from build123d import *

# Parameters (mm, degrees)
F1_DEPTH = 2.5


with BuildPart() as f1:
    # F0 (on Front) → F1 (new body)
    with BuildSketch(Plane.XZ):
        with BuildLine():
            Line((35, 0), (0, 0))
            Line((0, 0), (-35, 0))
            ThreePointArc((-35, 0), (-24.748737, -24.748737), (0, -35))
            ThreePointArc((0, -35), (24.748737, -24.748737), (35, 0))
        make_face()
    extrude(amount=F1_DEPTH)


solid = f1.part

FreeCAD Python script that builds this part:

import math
import FreeCAD as App
import Part
import Sketcher

V = App.Vector

doc = App.newDocument("Part")
body = doc.addObject("PartDesign::Body", "Body")

# Sketch on XZ plane
sketch1 = body.newObject("Sketcher::SketchObject", "Sketch")
sketch1.AttachmentSupport = (doc.getObject("XZ_Plane"), [""])
sketch1.MapMode = "FlatFace"
sketch1.addGeometry([
    Part.LineSegment(V(35, 0, 0), V(-35, 0, 0)),
    Part.ArcOfCircle(Part.Circle(V(0.000001, 0.000001, 0), V(0, 0, 1), 35.000001), math.radians(-179.999998), math.radians(-90.000002)),
    Part.ArcOfCircle(Part.Circle(V(-0.000001, 0.000001, 0), V(0, 0, 1), 35.000001), math.radians(-89.999998), math.radians(-0.000002)),
], False)
sketch1.addConstraint([
    Sketcher.Constraint("Coincident", 0, 2, 1, 1),
    Sketcher.Constraint("Tangent", 1, 2, 2, 1),
    Sketcher.Constraint("Coincident", 2, 2, 0, 1),
    Sketcher.Constraint("Horizontal", 0),
    Sketcher.Constraint("Coincident", 1, 3, -1, 1),
    Sketcher.Constraint("Equal", 1, 2),
    Sketcher.Constraint("PointOnObject", 0, 2, -1),
    Sketcher.Constraint("PointOnObject", 1, 2, -2),
    Sketcher.Constraint("Radius", 1, 35.000001),
])
pad1 = body.newObject("PartDesign::Pad", "Pad")
pad1.Profile = sketch1
pad1.Length = 2.5

doc.recompute()
